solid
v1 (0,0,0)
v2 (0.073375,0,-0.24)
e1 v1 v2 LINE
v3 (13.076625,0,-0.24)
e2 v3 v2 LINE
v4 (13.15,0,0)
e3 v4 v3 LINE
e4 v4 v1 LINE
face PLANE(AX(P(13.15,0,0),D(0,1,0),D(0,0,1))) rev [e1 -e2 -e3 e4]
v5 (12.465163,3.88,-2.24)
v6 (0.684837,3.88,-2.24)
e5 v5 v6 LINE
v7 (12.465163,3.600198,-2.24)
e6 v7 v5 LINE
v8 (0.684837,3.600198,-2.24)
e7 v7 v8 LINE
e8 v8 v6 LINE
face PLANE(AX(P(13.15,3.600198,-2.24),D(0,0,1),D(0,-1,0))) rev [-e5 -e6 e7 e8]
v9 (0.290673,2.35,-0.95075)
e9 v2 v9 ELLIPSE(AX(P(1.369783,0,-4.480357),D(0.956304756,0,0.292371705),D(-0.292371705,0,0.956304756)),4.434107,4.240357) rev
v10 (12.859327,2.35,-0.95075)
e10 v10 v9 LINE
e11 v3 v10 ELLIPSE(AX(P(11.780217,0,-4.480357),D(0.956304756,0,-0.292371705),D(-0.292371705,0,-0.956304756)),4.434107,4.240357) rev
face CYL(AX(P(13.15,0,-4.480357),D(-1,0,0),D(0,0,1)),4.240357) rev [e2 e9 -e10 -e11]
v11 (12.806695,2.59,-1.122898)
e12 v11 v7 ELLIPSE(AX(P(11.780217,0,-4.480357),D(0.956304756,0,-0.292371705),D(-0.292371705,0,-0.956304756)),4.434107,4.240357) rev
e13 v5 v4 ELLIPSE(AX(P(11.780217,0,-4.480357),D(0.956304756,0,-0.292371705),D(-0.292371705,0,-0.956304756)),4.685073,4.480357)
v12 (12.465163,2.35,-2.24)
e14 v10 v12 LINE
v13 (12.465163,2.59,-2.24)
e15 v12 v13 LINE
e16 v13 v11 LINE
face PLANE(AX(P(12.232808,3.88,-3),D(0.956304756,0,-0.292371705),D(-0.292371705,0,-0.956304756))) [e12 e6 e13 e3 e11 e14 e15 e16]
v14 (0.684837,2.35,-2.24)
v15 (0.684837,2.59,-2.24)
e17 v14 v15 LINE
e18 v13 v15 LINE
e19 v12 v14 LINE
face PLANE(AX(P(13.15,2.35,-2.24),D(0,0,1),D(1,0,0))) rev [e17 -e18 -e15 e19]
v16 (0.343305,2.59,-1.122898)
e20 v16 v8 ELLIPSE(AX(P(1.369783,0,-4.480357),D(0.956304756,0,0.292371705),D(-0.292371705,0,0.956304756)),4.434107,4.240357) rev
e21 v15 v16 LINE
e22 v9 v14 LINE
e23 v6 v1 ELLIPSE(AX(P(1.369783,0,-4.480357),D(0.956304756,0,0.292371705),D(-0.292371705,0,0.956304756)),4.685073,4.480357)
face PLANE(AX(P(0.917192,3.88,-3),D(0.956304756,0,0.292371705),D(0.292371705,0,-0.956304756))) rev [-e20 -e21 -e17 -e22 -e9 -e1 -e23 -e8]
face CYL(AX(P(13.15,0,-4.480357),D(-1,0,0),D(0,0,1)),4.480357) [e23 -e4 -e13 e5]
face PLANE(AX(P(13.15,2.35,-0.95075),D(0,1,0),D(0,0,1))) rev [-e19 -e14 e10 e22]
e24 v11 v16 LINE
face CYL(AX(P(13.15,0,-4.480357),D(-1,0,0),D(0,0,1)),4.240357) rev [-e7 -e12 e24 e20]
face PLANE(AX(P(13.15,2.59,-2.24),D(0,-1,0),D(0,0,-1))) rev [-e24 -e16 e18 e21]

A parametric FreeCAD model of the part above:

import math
import FreeCAD as App
import Part
import Sketcher

V = App.Vector
Q = App.Units.Quantity


def add_polygon(sketch, points):
    """Adds a closed chain of lines whose ends are joined by coincident constraints."""
    first, n = sketch.GeometryCount, len(points)
    for a, b in zip(points, points[1:] + points[:1]):
        sketch.addGeometry(Part.LineSegment(App.Vector(*a, 0), App.Vector(*b, 0)), False)
    for i in range(n):
        sketch.addConstraint(Sketcher.Constraint("Coincident", first + i, 2, first + (i + 1) % n, 1))

doc = App.newDocument("Part")
body = doc.addObject("PartDesign::Body", "Body")

# Sketch on YZ plane
sketch1 = body.newObject("Sketcher::SketchObject", "Sketch")
sketch1.AttachmentSupport = (doc.getObject("YZ_Plane"), [""])
sketch1.MapMode = "FlatFace"
sketch1.addGeometry([
    Part.LineSegment(V(0, 0, 0), V(0, -0.24, 0)),  # 0
    Part.ArcOfCircle(Part.Circle(V(0, -4.48, 0), V(0, 0, 1), 4.24), math.radians(56), math.radians(90)),  # 1
    Part.LineSegment(V(2.35, -0.95, 0), V(2.35, -2.24, 0)),  # 2
    Part.LineSegment(V(2.35, -2.24, 0), V(2.59, -2.24, 0)),  # 3
    Part.LineSegment(V(2.59, -2.24, 0), V(2.59, -1.12, 0)),  # 4
    Part.ArcOfCircle(Part.Circle(V(0, -4.48, 0), V(0, 0, 1), 4.24), math.radians(32), math.radians(52)),  # 5
    Part.LineSegment(V(3.6, -2.24, 0), V(3.88, -2.24, 0)),  # 6
    Part.ArcOfCircle(Part.Circle(V(0, -4.48, 0), V(0, 0, 1), 4.48), math.radians(30), math.radians(90)),  # 7
], False)
sketch1.addConstraint([
    Sketcher.Constraint("Coincident", 0, 2, 1, 2),
    Sketcher.Constraint("Coincident", 1, 1, 2, 1),
    Sketcher.Constraint("Coincident", 2, 2, 3, 1),
    Sketcher.Constraint("Coincident", 3, 2, 4, 1),
    Sketcher.Constraint("Coincident", 4, 2, 5, 2),
    Sketcher.Constraint("Coincident", 5, 1, 6, 1),
    Sketcher.Constraint("Coincident", 6, 2, 7, 1),
    Sketcher.Constraint("Coincident", 7, 2, 0, 1),
    Sketcher.Constraint("Vertical", 0),
    Sketcher.Constraint("Vertical", 2),
    Sketcher.Constraint("Horizontal", 3),
    Sketcher.Constraint("Vertical", 4),
    Sketcher.Constraint("Horizontal", 6),
    Sketcher.Constraint("Coincident", 7, 2, -1, 1),
    Sketcher.Constraint("Coincident", 5, 3, 1, 3),
    Sketcher.Constraint("Coincident", 7, 3, 1, 3),
    Sketcher.Constraint("Equal", 1, 5),
    Sketcher.Constraint("PointOnObject", 1, 3, -2),
    Sketcher.Constraint("Horizontal", 3, 2, 5, 1),
    Sketcher.Constraint("Equal", 3, 0),
    Sketcher.Constraint("DistanceY", 2, 2, 0, 2, Q("2 mm")),
    Sketcher.Constraint("DistanceX", 3, 1, 3, 2, Q("0.24 mm")),
    Sketcher.Constraint("DistanceX", -1, 1, 1, 1, Q("2.35 mm")),
    Sketcher.Constraint("DistanceX", -1, 1, 6, 2, Q("3.88 mm")),
])
pad1 = body.newObject("PartDesign::Pad", "Pad")
pad1.Profile = sketch1
pad1.Length = 13.15

# Sketch on XZ plane
sketch2 = body.newObject("Sketcher::SketchObject", "Sketch001")
sketch2.AttachmentSupport = (doc.getObject("XZ_Plane"), [""])
sketch2.MapMode = "FlatFace"
add_polygon(sketch2, [(-2.4, -4.6), (-2.4, 2.4), (15.5, 2.4), (15.5, -4.6)])  # lines 0-3
add_polygon(sketch2, [(0, 0), (0.9, -3), (12.2, -3), (13.2, 0)])  # lines 4-7
sketch2.addConstraint([
    Sketcher.Constraint("Vertical", 0),
    Sketcher.Constraint("Horizontal", 1),
    Sketcher.Constraint("Vertical", 2),
    Sketcher.Constraint("Horizontal", 3),
    Sketcher.Constraint("Horizontal", 5),
    Sketcher.Constraint("Horizontal", 7),
    Sketcher.Constraint("Coincident", 7, 2, -1, 1),
    Sketcher.Constraint("Equal", 4, 6),
    Sketcher.Constraint("Angle", 4, Q("-73 deg")),
    Sketcher.Constraint("DistanceY", 4, 2, -1, 1, Q("3 mm")),
    Sketcher.Constraint("DistanceX", 7, 2, 7, 1, Q("13.15 mm")),
    Sketcher.Constraint("DistanceX", 1, 1, 1, 2, Q("17.928 mm")),
    Sketcher.Constraint("DistanceY", 0, 1, 0, 2, Q("7.018 mm")),
    Sketcher.Constraint("DistanceX", 0, 2, -1, 1, Q("2.389 mm")),
    Sketcher.Constraint("DistanceY", -1, 1, 0, 2, Q("2.389 mm")),
])
pocket1 = body.newObject("PartDesign::Pocket", "Pocket")
pocket1.Profile = sketch2
pocket1.Type = "ThroughAll"
pocket1.Midplane = True

doc.recompute()
